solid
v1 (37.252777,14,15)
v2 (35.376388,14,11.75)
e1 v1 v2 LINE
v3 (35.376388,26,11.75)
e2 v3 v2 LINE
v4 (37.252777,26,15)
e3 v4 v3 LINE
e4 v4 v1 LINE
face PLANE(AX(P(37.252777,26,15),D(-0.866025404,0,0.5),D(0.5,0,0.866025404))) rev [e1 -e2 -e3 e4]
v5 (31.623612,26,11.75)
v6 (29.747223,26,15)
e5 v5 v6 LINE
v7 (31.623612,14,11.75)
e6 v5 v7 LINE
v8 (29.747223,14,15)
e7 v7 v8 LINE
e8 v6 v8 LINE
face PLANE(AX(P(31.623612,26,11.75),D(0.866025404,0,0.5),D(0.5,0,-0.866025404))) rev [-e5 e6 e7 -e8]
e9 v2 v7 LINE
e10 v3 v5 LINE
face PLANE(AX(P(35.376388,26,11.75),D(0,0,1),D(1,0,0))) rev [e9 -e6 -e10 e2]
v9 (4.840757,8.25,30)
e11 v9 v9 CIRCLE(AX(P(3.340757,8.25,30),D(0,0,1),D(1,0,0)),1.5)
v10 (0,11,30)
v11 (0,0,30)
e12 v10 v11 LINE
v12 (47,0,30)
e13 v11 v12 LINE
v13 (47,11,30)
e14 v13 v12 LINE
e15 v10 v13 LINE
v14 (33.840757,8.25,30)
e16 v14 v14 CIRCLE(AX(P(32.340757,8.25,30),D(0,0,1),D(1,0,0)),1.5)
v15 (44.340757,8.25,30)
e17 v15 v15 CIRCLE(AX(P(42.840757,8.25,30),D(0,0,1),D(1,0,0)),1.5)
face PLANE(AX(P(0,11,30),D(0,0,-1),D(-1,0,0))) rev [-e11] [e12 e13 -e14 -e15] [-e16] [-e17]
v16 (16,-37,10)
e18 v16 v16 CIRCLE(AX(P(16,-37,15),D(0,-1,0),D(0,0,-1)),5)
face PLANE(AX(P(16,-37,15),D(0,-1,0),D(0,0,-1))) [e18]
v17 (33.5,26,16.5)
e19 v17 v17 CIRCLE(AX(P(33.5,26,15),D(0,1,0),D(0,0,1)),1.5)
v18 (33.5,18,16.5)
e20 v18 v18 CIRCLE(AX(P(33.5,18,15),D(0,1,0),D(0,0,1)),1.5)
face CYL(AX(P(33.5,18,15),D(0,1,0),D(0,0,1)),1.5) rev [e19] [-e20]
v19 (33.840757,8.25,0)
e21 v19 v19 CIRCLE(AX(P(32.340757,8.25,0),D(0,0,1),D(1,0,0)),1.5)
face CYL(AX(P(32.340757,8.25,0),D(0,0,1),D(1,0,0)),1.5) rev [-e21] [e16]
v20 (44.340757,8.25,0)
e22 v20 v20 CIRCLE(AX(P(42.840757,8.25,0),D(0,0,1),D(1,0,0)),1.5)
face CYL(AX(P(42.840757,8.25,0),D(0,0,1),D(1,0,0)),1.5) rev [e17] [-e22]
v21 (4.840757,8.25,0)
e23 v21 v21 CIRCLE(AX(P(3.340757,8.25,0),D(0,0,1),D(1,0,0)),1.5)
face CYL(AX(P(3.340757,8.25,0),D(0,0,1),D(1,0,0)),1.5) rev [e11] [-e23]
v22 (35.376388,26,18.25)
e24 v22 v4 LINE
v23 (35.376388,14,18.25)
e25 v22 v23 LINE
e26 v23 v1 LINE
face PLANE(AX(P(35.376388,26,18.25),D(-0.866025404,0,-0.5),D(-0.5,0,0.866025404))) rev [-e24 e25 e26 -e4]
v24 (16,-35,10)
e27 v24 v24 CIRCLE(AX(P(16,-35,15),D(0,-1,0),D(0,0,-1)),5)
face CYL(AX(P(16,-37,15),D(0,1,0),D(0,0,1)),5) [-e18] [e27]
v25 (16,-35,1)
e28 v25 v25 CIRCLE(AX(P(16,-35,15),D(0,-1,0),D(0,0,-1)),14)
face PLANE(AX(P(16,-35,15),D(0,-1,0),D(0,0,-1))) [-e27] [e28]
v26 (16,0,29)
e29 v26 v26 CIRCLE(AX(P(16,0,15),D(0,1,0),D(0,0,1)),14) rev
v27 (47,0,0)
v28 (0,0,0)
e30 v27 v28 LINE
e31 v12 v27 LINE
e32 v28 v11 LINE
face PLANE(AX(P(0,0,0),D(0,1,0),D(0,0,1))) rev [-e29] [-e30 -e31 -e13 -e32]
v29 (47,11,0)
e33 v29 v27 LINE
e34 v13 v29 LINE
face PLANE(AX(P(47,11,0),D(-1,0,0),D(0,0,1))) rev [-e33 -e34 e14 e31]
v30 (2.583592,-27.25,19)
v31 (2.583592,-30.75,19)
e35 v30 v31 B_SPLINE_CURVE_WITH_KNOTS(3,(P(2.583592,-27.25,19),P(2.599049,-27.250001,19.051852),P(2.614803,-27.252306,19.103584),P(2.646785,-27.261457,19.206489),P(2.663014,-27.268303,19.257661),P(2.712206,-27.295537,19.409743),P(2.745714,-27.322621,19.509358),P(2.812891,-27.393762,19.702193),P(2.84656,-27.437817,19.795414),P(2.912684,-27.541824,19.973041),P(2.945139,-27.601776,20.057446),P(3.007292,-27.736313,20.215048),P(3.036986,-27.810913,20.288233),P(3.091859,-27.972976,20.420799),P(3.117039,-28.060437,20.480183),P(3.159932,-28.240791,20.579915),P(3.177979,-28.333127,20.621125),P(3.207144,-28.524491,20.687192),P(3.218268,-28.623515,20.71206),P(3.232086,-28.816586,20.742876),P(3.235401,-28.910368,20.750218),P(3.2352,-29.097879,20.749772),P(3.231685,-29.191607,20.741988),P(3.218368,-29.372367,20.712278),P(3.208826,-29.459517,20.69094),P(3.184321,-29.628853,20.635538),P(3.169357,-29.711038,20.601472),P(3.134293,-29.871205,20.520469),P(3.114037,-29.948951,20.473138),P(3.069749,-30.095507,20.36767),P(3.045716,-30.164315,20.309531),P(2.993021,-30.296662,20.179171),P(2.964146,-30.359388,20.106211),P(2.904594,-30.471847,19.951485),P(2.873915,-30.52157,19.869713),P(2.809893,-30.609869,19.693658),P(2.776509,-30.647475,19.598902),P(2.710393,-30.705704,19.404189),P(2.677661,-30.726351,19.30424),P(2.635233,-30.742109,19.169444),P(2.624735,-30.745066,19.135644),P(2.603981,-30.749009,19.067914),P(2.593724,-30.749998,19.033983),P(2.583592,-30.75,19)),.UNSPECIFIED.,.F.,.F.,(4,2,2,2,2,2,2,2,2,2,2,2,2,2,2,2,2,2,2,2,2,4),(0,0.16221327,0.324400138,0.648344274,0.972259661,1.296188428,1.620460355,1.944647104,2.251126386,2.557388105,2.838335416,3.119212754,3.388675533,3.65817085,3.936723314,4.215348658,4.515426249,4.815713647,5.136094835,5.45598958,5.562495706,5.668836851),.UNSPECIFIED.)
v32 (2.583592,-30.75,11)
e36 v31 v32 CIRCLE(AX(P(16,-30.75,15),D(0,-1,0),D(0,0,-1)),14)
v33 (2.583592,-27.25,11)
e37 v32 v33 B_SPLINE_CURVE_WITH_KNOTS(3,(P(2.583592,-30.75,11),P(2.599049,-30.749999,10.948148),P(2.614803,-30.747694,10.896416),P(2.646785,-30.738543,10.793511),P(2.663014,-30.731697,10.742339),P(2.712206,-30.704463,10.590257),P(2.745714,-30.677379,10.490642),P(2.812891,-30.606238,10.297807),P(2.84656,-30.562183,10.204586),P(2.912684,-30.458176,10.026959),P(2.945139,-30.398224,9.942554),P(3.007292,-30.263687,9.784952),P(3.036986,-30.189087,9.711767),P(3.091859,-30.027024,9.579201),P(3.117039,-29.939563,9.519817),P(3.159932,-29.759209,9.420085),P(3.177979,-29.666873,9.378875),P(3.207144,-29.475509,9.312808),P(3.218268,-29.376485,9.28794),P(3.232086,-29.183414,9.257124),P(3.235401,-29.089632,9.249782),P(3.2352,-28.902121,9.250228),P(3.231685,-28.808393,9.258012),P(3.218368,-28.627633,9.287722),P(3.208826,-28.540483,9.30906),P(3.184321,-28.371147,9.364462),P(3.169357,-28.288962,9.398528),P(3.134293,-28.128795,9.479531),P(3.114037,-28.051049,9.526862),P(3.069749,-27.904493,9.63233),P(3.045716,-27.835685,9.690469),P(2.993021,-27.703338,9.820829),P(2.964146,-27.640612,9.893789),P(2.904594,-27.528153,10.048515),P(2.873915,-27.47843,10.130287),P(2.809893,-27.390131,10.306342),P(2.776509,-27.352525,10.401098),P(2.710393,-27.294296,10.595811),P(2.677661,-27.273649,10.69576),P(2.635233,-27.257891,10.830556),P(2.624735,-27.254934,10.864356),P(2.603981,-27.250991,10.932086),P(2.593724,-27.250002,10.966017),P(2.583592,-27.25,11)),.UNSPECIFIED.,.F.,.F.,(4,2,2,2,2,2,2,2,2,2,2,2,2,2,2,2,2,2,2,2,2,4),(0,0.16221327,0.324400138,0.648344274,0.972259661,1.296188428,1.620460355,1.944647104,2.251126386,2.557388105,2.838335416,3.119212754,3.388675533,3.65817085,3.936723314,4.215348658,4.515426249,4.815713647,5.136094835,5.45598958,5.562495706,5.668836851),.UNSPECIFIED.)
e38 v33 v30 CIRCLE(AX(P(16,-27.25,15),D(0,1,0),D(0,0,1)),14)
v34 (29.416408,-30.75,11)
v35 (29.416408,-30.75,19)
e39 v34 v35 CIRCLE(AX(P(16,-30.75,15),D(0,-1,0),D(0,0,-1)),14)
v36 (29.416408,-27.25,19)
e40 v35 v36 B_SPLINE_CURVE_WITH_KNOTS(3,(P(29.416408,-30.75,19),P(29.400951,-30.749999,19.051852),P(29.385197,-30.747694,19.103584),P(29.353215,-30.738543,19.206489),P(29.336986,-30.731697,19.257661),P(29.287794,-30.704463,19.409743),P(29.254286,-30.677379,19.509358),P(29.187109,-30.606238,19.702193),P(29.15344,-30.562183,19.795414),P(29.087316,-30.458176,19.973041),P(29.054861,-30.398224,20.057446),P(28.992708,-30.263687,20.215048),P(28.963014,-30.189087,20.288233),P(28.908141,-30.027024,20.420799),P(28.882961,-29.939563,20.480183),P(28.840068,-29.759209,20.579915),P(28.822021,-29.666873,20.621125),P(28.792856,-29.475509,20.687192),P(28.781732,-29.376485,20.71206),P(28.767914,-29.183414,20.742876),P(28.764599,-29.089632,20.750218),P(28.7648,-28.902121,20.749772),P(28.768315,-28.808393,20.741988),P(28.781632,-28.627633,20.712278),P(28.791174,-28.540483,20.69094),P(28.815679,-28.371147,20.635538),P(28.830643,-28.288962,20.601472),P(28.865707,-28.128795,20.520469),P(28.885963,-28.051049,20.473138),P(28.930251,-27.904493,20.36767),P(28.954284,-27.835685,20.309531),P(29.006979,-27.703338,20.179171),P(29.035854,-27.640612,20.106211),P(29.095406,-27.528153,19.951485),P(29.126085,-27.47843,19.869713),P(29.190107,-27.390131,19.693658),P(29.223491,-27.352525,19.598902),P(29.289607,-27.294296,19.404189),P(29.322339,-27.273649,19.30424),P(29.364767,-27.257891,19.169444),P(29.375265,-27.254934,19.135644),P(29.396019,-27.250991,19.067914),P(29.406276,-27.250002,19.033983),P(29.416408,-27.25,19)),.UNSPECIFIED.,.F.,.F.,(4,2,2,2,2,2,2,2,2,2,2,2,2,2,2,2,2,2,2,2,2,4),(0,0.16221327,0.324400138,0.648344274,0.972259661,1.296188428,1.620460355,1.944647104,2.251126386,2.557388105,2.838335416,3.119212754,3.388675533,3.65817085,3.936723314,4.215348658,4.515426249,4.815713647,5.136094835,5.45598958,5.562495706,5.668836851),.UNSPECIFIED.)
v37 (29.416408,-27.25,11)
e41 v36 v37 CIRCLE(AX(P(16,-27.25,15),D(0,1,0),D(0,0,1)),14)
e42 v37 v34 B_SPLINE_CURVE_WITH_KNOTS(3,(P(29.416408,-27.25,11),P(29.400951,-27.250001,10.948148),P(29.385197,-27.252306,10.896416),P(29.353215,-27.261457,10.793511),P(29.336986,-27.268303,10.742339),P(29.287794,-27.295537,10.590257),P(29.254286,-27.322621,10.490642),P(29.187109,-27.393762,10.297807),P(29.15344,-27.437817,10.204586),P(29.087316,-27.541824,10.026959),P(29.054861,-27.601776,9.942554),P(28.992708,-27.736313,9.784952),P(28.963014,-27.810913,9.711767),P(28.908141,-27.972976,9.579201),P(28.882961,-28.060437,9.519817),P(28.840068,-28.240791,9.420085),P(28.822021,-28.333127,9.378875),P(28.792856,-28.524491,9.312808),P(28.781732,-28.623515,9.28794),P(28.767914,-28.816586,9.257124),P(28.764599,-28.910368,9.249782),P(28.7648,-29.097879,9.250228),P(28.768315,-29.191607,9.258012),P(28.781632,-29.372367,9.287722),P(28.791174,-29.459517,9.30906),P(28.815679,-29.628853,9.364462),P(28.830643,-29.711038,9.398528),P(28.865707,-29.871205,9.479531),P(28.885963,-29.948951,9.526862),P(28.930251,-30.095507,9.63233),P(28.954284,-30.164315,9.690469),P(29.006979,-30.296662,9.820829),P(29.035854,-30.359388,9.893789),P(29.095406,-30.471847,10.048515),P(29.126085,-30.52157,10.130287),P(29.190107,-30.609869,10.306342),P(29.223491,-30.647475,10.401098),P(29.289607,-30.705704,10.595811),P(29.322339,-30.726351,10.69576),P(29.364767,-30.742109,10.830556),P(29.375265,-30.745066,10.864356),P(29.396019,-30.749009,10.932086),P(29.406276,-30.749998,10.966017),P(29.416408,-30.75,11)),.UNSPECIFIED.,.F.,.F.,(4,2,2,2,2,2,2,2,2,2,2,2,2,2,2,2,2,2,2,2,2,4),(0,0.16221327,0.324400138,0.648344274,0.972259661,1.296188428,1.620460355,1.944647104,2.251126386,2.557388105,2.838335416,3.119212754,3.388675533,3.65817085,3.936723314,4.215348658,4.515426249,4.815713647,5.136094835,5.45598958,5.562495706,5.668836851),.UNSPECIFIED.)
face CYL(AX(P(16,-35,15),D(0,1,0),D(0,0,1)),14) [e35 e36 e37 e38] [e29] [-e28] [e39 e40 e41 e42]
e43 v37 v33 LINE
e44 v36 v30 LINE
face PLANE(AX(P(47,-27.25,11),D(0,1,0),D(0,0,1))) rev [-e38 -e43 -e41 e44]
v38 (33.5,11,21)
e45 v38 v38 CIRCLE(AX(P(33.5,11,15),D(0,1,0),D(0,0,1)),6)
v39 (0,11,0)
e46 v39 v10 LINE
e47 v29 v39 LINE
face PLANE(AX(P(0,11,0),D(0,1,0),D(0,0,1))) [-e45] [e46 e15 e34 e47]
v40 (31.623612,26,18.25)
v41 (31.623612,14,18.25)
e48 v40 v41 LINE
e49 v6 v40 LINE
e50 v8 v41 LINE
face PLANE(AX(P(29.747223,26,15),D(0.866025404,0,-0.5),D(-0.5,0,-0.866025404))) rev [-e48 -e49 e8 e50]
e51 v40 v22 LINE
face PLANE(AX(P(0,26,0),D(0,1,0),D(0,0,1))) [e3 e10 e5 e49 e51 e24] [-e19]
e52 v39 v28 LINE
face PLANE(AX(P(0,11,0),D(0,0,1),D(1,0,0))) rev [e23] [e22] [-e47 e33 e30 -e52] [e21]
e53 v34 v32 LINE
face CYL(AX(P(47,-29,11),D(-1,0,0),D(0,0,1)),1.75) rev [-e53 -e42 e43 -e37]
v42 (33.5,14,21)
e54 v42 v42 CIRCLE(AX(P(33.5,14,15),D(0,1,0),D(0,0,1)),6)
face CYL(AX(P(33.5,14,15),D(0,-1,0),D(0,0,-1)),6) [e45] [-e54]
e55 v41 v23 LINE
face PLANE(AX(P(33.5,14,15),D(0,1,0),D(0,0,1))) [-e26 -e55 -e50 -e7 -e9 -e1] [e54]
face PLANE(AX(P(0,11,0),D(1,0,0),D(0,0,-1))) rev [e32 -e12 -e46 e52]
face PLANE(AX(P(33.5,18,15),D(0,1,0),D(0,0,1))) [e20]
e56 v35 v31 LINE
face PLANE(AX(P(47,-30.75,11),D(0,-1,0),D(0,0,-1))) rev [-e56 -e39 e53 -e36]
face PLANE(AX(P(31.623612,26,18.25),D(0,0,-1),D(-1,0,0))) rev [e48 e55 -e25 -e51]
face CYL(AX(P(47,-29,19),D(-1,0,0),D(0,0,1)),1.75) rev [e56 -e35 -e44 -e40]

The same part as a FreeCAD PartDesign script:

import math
import FreeCAD as App
import Part
import Sketcher
Q = App.Units.Quantity


def add_polygon(sketch, points):
    """Adds a closed chain of lines whose ends are joined by coincident constraints."""
    first, n = sketch.GeometryCount, len(points)
    for a, b in zip(points, points[1:] + points[:1]):
        sketch.addGeometry(Part.LineSegment(App.Vector(*a, 0), App.Vector(*b, 0)), False)
    for i in range(n):
        sketch.addConstraint(Sketcher.Constraint("Coincident", first + i, 2, first + (i + 1) % n, 1))

doc = App.newDocument("Part")
body = doc.addObject("PartDesign::Body", "Body")

sketch1 = body.newObject("Sketcher::SketchObject", "Sketch")
sketch1.AttachmentSupport = (doc.getObject("XZ_Plane"), [""])
sketch1.MapMode = "FlatFace"
add_polygon(sketch1, [(0, 0), (0, 30), (47, 30), (47, 0)])
sketch1.addConstraint(Sketcher.Constraint("Vertical", 0))
sketch1.addConstraint(Sketcher.Constraint("Horizontal", 1))
sketch1.addConstraint(Sketcher.Constraint("Vertical", 2))
sketch1.addConstraint(Sketcher.Constraint("Horizontal", 3))
sketch1.addConstraint(Sketcher.Constraint("Coincident", 3, 2, -1, 1))
sketch1.addConstraint(Sketcher.Constraint("DistanceX", 1, 1, 1, 2, 47.0))
sketch1.addConstraint(Sketcher.Constraint("DistanceY", 0, 1, 0, 2, 30.0))
pad1 = body.newObject("PartDesign::Pad", "Pad")
pad1.Profile = sketch1
pad1.Length = 11
pad1.Reversed = True

sketch2 = body.newObject("Sketcher::SketchObject", "Sketch001")
sketch2.AttachmentSupport = (doc.getObject("XZ_Plane"), [""])
sketch2.MapMode = "FlatFace"
sketch2.AttachmentOffset = App.Placement(App.Vector(0, 0, -11), App.Rotation())
sketch2.addGeometry(Part.Circle(App.Vector(34, 15, 0), App.Vector(0, 0, 1), 6), False)
sketch2.addConstraint(Sketcher.Constraint("Diameter", 0, 12.0))
sketch2.addConstraint(Sketcher.Constraint("DistanceY", -1, 1, 0, 3, 15.0))
sketch2.addConstraint(Sketcher.Constraint("DistanceX", -1, 1, 0, 3, 33.5))
pad2 = body.newObject("PartDesign::Pad", "Pad001")
pad2.Profile = sketch2
pad2.Length = 3
pad2.Reversed = True

sketch3 = body.newObject("Sketcher::SketchObject", "Sketch002")
sketch3.AttachmentSupport = (doc.getObject("XZ_Plane"), [""])
sketch3.MapMode = "FlatFace"
sketch3.AttachmentOffset = App.Placement(App.Vector(0, 0, -14), App.Rotation())
add_polygon(sketch3, [(37.3, 15), (35.4, 11.8), (31.6, 11.8), (29.7, 15), (31.6, 18.2), (35.4, 18.2)])
sketch3.addConstraint(Sketcher.Constraint("Horizontal", 1))
sketch3.addConstraint(Sketcher.Constraint("Horizontal", 4))
sketch3.addConstraint(Sketcher.Constraint("Parallel", 0, 3))
sketch3.addConstraint(Sketcher.Constraint("Parallel", 2, 5))
sketch3.addConstraint(Sketcher.Constraint("Horizontal", 2, 2, 5, 2))
sketch3.addConstraint(Sketcher.Constraint("Vertical", 1, 2, 3, 2))
sketch3.addConstraint(Sketcher.Constraint("Vertical", 0, 2, 4, 2))
sketch3.addConstraint(Sketcher.Constraint("Angle", 0, Q("-120 deg")))
sketch3.addConstraint(Sketcher.Constraint("DistanceY", -1, 1, 2, 2, 15.0))
sketch3.addConstraint(Sketcher.Constraint("DistanceY", 1, 2, 3, 2, 6.5))
sketch3.addConstraint(Sketcher.Constraint("DistanceX", 1, 2, 1, 1, 3.752777))
sketch3.addConstraint(Sketcher.Constraint("DistanceX", -1, 1, 0, 2, 35.376388))
pad3 = body.newObject("PartDesign::Pad", "Pad002")
pad3.Profile = sketch3
pad3.Length = 12
pad3.Reversed = True

sketch4 = body.newObject("Sketcher::SketchObject", "Sketch003")
sketch4.AttachmentSupport = (doc.getObject("XZ_Plane"), [""])
sketch4.MapMode = "FlatFace"
sketch4.addGeometry(Part.Circle(App.Vector(16, 15, 0), App.Vector(0, 0, 1), 14), False)
sketch4.addConstraint(Sketcher.Constraint("Diameter", 0, 28.0))
sketch4.addConstraint(Sketcher.Constraint("DistanceX", -1, 1, 0, 3, 16.0))
sketch4.addConstraint(Sketcher.Constraint("DistanceY", -1, 1, 0, 3, 15.0))
pad4 = body.newObject("PartDesign::Pad", "Pad003")
pad4.Profile = sketch4
pad4.Length = 35

sketch5 = body.newObject("Sketcher::SketchObject", "Sketch004")
sketch5.AttachmentSupport = (doc.getObject("XZ_Plane"), [""])
sketch5.MapMode = "FlatFace"
sketch5.AttachmentOffset = App.Placement(App.Vector(0, 0, 35), App.Rotation())
sketch5.addGeometry(Part.Circle(App.Vector(16, 15, 0), App.Vector(0, 0, 1), 5), False)
sketch5.addConstraint(Sketcher.Constraint("Diameter", 0, 10.0))
sketch5.addConstraint(Sketcher.Constraint("DistanceX", -1, 1, 0, 3, 16.0))
sketch5.addConstraint(Sketcher.Constraint("DistanceY", -1, 1, 0, 3, 15.0))
pad5 = body.newObject("PartDesign::Pad", "Pad004")
pad5.Profile = sketch5
pad5.Length = 2

sketch6 = body.newObject("Sketcher::SketchObject", "Sketch005")
sketch6.AttachmentSupport = (doc.getObject("XY_Plane"), [""])
sketch6.MapMode = "FlatFace"
sketch6.AttachmentOffset = App.Placement(App.Vector(0, 0, 30), App.Rotation())
sketch6.addGeometry(Part.Circle(App.Vector(3.3, 8.2, 0), App.Vector(0, 0, 1), 1.5), False)
sketch6.addGeometry(Part.Circle(App.Vector(32.3, 8.2, 0), App.Vector(0, 0, 1), 1.5), False)
sketch6.addGeometry(Part.Circle(App.Vector(42.8, 8.2, 0), App.Vector(0, 0, 1), 1.5), False)
sketch6.addConstraint(Sketcher.Constraint("Equal", 0, 1))
sketch6.addConstraint(Sketcher.Constraint("Equal", 1, 2))
sketch6.addConstraint(Sketcher.Constraint("Horizontal", 0, 3, 1, 3))
sketch6.addConstraint(Sketcher.Constraint("Horizontal", 1, 3, 2, 3))
sketch6.addConstraint(Sketcher.Constraint("Diameter", 0, 3.0))
sketch6.addConstraint(Sketcher.Constraint("DistanceX", 0, 3, 1, 3, 29.0))
sketch6.addConstraint(Sketcher.Constraint("DistanceX", 1, 3, 2, 3, 10.5))
sketch6.addConstraint(Sketcher.Constraint("DistanceY", -1, 1, 0, 3, 8.25))
sketch6.addConstraint(Sketcher.Constraint("DistanceX", -1, 1, 0, 3, 3.340757))
pocket1 = body.newObject("PartDesign::Pocket", "Pocket")
pocket1.Profile = sketch6
pocket1.Type = "ThroughAll"

sketch7 = body.newObject("Sketcher::SketchObject", "Sketch006")
sketch7.AttachmentSupport = (doc.getObject("YZ_Plane"), [""])
sketch7.MapMode = "FlatFace"
sketch7.addGeometry(Part.LineSegment(App.Vector(-27.2, 19, 0), App.Vector(-27.2, 11, 0)), False)
sketch7.addGeometry(Part.ArcOfCircle(Part.Circle(App.Vector(-29, 11, 0), App.Vector(0, 0, 1), 1.8), math.radians(180), math.radians(360)), False)
sketch7.addGeometry(Part.LineSegment(App.Vector(-30.8, 11, 0), App.Vector(-30.8, 19, 0)), False)
sketch7.addGeometry(Part.ArcOfCircle(Part.Circle(App.Vector(-29, 19, 0), App.Vector(0, 0, 1), 1.8), math.radians(0), math.radians(180)), False)
sketch7.addConstraint(Sketcher.Constraint("Tangent", 0, 2, 1, 2))
sketch7.addConstraint(Sketcher.Constraint("Tangent", 1, 1, 2, 1))
sketch7.addConstraint(Sketcher.Constraint("Tangent", 2, 2, 3, 2))
sketch7.addConstraint(Sketcher.Constraint("Tangent", 3, 1, 0, 1))
sketch7.addConstraint(Sketcher.Constraint("Vertical", 0))
sketch7.addConstraint(Sketcher.Constraint("Vertical", 2))
sketch7.addConstraint(Sketcher.Constraint("DistanceY", 0, 2, 0, 1, 8.0))
sketch7.addConstraint(Sketcher.Constraint("Radius", 1, 1.75))
sketch7.addConstraint(Sketcher.Constraint("DistanceX", 1, 3, -1, 1, 29.0))
sketch7.addConstraint(Sketcher.Constraint("DistanceY", -1, 1, 1, 3, 11.0))
pocket2 = body.newObject("PartDesign::Pocket", "Pocket001")
pocket2.Profile = sketch7
pocket2.Type = "ThroughAll"
pocket2.Reversed = True

sketch8 = body.newObject("Sketcher::SketchObject", "Sketch007")
sketch8.AttachmentSupport = (doc.getObject("XZ_Plane"), [""])
sketch8.MapMode = "FlatFace"
sketch8.AttachmentOffset = App.Placement(App.Vector(0, 0, -26), App.Rotation())
sketch8.addGeometry(Part.Circle(App.Vector(33.5, 15, 0), App.Vector(0, 0, 1), 1.5), False)
sketch8.addConstraint(Sketcher.Constraint("Diameter", 0, 3.0))
sketch8.addConstraint(Sketcher.Constraint("DistanceY", -1, 1, 0, 3, 15.0))
sketch8.addConstraint(Sketcher.Constraint("DistanceX", -1, 1, 0, 3, 33.5))
pocket3 = body.newObject("PartDesign::Pocket", "Pocket002")
pocket3.Profile = sketch8
pocket3.Length = 8
pocket3.Reversed = True

doc.recompute()
